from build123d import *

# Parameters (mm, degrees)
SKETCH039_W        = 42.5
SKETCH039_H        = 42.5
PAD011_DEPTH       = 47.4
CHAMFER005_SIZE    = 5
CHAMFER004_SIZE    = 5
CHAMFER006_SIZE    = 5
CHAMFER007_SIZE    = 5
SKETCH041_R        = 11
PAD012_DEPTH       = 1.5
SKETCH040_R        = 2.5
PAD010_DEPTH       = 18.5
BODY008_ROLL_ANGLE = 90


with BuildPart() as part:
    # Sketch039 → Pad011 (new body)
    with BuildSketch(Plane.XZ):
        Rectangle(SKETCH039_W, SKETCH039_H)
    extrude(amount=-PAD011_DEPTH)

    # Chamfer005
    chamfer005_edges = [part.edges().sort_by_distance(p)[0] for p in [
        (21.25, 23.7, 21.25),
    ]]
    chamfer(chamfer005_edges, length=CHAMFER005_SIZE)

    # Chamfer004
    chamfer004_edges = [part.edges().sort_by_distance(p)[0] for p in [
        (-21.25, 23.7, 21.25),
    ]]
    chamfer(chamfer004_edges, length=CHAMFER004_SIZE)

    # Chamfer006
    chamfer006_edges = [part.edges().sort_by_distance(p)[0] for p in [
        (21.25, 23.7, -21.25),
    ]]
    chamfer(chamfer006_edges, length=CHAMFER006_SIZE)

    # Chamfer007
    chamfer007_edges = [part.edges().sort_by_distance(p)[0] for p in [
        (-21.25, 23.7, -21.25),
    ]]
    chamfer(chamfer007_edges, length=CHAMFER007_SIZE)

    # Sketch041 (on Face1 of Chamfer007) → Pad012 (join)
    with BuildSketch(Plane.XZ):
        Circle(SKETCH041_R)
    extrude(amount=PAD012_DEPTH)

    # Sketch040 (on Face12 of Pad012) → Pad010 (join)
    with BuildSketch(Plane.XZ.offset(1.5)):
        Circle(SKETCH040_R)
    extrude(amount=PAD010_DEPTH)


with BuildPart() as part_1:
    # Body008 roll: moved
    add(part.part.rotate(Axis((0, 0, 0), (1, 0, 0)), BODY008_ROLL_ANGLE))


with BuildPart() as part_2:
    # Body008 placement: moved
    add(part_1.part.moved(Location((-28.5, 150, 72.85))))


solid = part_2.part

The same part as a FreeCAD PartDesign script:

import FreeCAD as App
import Part
import Sketcher
Q = App.Units.Quantity


def edges_at(feature, points):
    """Names of the edges that pass closest to the given points."""
    edges = feature.Shape.Edges
    near = lambda p: min(range(len(edges)), key=lambda i: edges[i].distToShape(Part.Vertex(*p))[0])
    return sorted({f"Edge{near(p) + 1}" for p in points})

doc = App.newDocument("Part")
body = doc.addObject("PartDesign::Body", "Body")

sketch1 = doc.addObject("Sketcher::SketchObject", "Sketch")
body.addObject(sketch1)
sketch1.AttachmentSupport = (doc.XZ_Plane, [""])
sketch1.MapMode = "FlatFace"
sketch1.addGeometry([
    Part.LineSegment(App.Vector(-21, 21, 0), App.Vector(-21, -21, 0)),
    Part.LineSegment(App.Vector(-21, -21, 0), App.Vector(21, -21, 0)),
    Part.LineSegment(App.Vector(21, -21, 0), App.Vector(21, 21, 0)),
    Part.LineSegment(App.Vector(21, 21, 0), App.Vector(-21, 21, 0)),
], False)
sketch1.addConstraint([
    Sketcher.Constraint("Coincident", 0, 2, 1, 1),
    Sketcher.Constraint("Coincident", 1, 2, 2, 1),
    Sketcher.Constraint("Coincident", 2, 2, 3, 1),
    Sketcher.Constraint("Coincident", 3, 2, 0, 1),
    Sketcher.Constraint("Vertical", 0),
    Sketcher.Constraint("Horizontal", 1),
    Sketcher.Constraint("Vertical", 2),
    Sketcher.Constraint("Horizontal", 3),
    Sketcher.Constraint("Symmetric", 0, 2, 2, 2, -1, 1),
    Sketcher.Constraint("Equal", 3, 0),
    Sketcher.Constraint("DistanceX", 1, 1, 1, 2, Q("42.5 mm")),
])
pad1 = doc.addObject("PartDesign::Pad", "Pad")
body.addObject(pad1)
pad1.Profile = sketch1
pad1.Length = 47.4
pad1.Reversed = True
doc.recompute()

chamfer = doc.addObject("PartDesign::Chamfer", "Chamfer")
body.addObject(chamfer)
chamfer.Base = (pad1, edges_at(pad1, [(21.25, 23.7, 21.25)]))
chamfer.Size = 5
doc.recompute()

chamfer2 = doc.addObject("PartDesign::Chamfer", "Chamfer001")
body.addObject(chamfer2)
chamfer2.Base = (chamfer, edges_at(chamfer, [(-21.25, 23.7, 21.25)]))
chamfer2.Size = 5
doc.recompute()

chamfer3 = doc.addObject("PartDesign::Chamfer", "Chamfer002")
body.addObject(chamfer3)
chamfer3.Base = (chamfer2, edges_at(chamfer2, [(21.25, 23.7, -21.25)]))
chamfer3.Size = 5
doc.recompute()

chamfer4 = doc.addObject("PartDesign::Chamfer", "Chamfer003")
body.addObject(chamfer4)
chamfer4.Base = (chamfer3, edges_at(chamfer3, [(-21.25, 23.7, -21.25)]))
chamfer4.Size = 5

sketch2 = doc.addObject("Sketcher::SketchObject", "Sketch001")
body.addObject(sketch2)
sketch2.AttachmentSupport = (doc.XZ_Plane, [""])
sketch2.MapMode = "FlatFace"
sketch2.addGeometry(Part.Circle(App.Vector(0, 0, 0), App.Vector(0, 0, 1), 11), False)
sketch2.addConstraint([
    Sketcher.Constraint("Coincident", 0, 3, -1, 1),
    Sketcher.Constraint("Diameter", 0, Q("22 mm")),
])
pad2 = doc.addObject("PartDesign::Pad", "Pad001")
body.addObject(pad2)
pad2.Profile = sketch2
pad2.Length = 1.5

sketch3 = doc.addObject("Sketcher::SketchObject", "Sketch002")
body.addObject(sketch3)
sketch3.AttachmentSupport = (doc.XZ_Plane, [""])
sketch3.MapMode = "FlatFace"
sketch3.AttachmentOffset = App.Placement(App.Vector(0, 0, 1.5), App.Rotation())
sketch3.addGeometry(Part.Circle(App.Vector(0, 0, 0), App.Vector(0, 0, 1), 2.5), False)
sketch3.addConstraint([
    Sketcher.Constraint("Coincident", 0, 3, -1, 1),
    Sketcher.Constraint("Diameter", 0, Q("5 mm")),
])
pad3 = doc.addObject("PartDesign::Pad", "Pad002")
body.addObject(pad3)
pad3.Profile = sketch3
pad3.Length = 18.5
body2 = doc.addObject("PartDesign::Body", "Body001")
doc.recompute()

body.Placement = App.Placement(App.Vector(0, 0, 0), App.Rotation(App.Vector(1, 0, 0), 90))
boolean = doc.addObject("PartDesign::Boolean", "Boolean")
body2.addObject(boolean)
boolean.Type = "Fuse"
boolean.addObjects([body])
body3 = doc.addObject("PartDesign::Body", "Body002")
doc.recompute()

body2.Placement = App.Placement(App.Vector(-28.5, 150, 72.85), App.Rotation(App.Vector(0, 0, 1), 0))
boolean2 = doc.addObject("PartDesign::Boolean", "Boolean001")
body3.addObject(boolean2)
boolean2.Type = "Fuse"
boolean2.addObjects([body2])

doc.recompute()
